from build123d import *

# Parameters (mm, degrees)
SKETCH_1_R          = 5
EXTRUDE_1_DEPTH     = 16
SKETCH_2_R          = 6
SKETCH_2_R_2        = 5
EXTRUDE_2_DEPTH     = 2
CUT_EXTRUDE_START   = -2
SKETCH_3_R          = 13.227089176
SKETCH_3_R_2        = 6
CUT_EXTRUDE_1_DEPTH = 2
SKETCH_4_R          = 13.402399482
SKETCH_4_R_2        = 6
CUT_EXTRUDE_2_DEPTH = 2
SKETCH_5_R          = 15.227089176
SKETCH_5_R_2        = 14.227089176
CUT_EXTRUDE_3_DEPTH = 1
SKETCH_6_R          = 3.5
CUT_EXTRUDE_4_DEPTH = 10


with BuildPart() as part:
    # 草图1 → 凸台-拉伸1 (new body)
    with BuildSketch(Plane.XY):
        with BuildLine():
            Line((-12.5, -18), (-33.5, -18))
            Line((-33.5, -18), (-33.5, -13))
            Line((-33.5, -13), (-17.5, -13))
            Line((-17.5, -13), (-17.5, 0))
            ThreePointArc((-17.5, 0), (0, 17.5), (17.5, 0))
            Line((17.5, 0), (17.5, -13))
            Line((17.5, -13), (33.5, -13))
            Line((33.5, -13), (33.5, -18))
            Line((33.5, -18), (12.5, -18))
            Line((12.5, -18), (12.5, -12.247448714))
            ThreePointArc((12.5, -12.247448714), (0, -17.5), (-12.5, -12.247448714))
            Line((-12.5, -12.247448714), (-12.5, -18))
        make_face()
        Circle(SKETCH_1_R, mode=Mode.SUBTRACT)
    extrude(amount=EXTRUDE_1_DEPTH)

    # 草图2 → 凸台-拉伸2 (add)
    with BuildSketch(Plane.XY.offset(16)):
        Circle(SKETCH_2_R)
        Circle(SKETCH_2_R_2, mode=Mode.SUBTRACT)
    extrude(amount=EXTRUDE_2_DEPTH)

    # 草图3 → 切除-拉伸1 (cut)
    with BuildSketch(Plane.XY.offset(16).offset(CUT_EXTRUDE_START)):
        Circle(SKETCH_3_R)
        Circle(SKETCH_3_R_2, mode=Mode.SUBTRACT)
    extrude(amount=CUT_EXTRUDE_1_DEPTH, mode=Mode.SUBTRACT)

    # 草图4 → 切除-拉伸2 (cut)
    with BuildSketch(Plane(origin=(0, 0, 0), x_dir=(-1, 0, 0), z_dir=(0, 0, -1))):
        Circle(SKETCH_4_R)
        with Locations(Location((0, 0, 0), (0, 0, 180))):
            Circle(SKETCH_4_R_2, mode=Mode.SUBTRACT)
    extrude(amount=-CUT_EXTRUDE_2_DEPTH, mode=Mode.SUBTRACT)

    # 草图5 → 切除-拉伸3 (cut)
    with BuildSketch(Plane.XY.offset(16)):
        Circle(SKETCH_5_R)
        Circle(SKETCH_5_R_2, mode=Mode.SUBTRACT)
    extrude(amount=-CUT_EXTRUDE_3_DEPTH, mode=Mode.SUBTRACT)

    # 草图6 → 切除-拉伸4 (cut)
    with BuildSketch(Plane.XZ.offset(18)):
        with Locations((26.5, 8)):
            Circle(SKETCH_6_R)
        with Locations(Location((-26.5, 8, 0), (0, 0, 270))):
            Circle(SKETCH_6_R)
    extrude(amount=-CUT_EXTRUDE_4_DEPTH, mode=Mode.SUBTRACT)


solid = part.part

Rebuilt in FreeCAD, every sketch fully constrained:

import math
import FreeCAD as App
import Part
import Sketcher
Q = App.Units.Quantity

doc = App.newDocument("Part")
body = doc.addObject("PartDesign::Body", "Body")

# Sketch on XY plane
sketch1 = body.newObject("Sketcher::SketchObject", "Sketch")
sketch1.AttachmentSupport = (doc.getObject("XY_Plane"), [""])
sketch1.MapMode = "FlatFace"
sketch1.addGeometry([
    Part.LineSegment(App.Vector(-33.5, -18, 0), App.Vector(-12.5, -18, 0)),  # 0
    Part.LineSegment(App.Vector(-12.5, -18, 0), App.Vector(-12.5, -12.247449, 0)),  # 1
    Part.ArcOfCircle(Part.Circle(App.Vector(0, 0, 0), App.Vector(0, 0, 1), 17.5), math.radians(-135.584691), math.radians(-44.415309)),  # 2
    Part.LineSegment(App.Vector(12.5, -12.247449, 0), App.Vector(12.5, -18, 0)),  # 3
    Part.LineSegment(App.Vector(12.5, -18, 0), App.Vector(33.5, -18, 0)),  # 4
    Part.LineSegment(App.Vector(33.5, -18, 0), App.Vector(33.5, -13, 0)),  # 5
    Part.LineSegment(App.Vector(33.5, -13, 0), App.Vector(17.5, -13, 0)),  # 6
    Part.LineSegment(App.Vector(17.5, -13, 0), App.Vector(17.5, 0, 0)),  # 7
    Part.ArcOfCircle(Part.Circle(App.Vector(0, 0, 0), App.Vector(0, 0, 1), 17.5), math.radians(0), math.radians(180)),  # 8
    Part.LineSegment(App.Vector(-17.5, 0, 0), App.Vector(-17.5, -13, 0)),  # 9
    Part.LineSegment(App.Vector(-17.5, -13, 0), App.Vector(-33.5, -13, 0)),  # 10
    Part.LineSegment(App.Vector(-33.5, -13, 0), App.Vector(-33.5, -18, 0)),  # 11
    Part.Circle(App.Vector(0, 0, 0), App.Vector(0, 0, 1), 5),  # 12
], False)
sketch1.addConstraint([
    Sketcher.Constraint("Coincident", 0, 2, 1, 1),
    Sketcher.Constraint("Coincident", 1, 2, 2, 1),
    Sketcher.Constraint("Coincident", 2, 2, 3, 1),
    Sketcher.Constraint("Coincident", 3, 2, 4, 1),
    Sketcher.Constraint("Coincident", 4, 2, 5, 1),
    Sketcher.Constraint("Coincident", 5, 2, 6, 1),
    Sketcher.Constraint("Coincident", 6, 2, 7, 1),
    Sketcher.Constraint("Tangent", 7, 2, 8, 1),
    Sketcher.Constraint("Tangent", 8, 2, 9, 1),
    Sketcher.Constraint("Coincident", 9, 2, 10, 1),
    Sketcher.Constraint("Coincident", 10, 2, 11, 1),
    Sketcher.Constraint("Coincident", 11, 2, 0, 1),
    Sketcher.Constraint("Horizontal", 0),
    Sketcher.Constraint("Vertical", 1),
    Sketcher.Constraint("Vertical", 3),
    Sketcher.Constraint("Horizontal", 4),
    Sketcher.Constraint("Vertical", 5),
    Sketcher.Constraint("Horizontal", 6),
    Sketcher.Constraint("Vertical", 7),
    Sketcher.Constraint("Vertical", 9),
    Sketcher.Constraint("Horizontal", 10),
    Sketcher.Constraint("Vertical", 11),
    Sketcher.Constraint("Coincident", 2, 3, -1, 1),
    Sketcher.Constraint("Coincident", 8, 3, -1, 1),
    Sketcher.Constraint("Coincident", 12, 3, -1, 1),
    Sketcher.Constraint("Equal", 2, 8),
    Sketcher.Constraint("Symmetric", 0, 2, 3, 2, -2),
    Sketcher.Constraint("Symmetric", 5, 2, 10, 2, -2),
    Sketcher.Constraint("Diameter", 12, Q("10 mm")),
    Sketcher.Constraint("Radius", 2, Q("17.5 mm")),
    Sketcher.Constraint("DistanceX", 0, 1, 0, 2, Q("21 mm")),
    Sketcher.Constraint("DistanceX", 6, 2, 6, 1, Q("16 mm")),
    Sketcher.Constraint("DistanceY", 5, 1, 5, 2, Q("5 mm")),
    Sketcher.Constraint("DistanceY", 7, 1, 7, 2, Q("13 mm")),
])
pad1 = body.newObject("PartDesign::Pad", "Pad")
pad1.Profile = sketch1
pad1.Length = 16

# Sketch on XY plane
sketch2 = body.newObject("Sketcher::SketchObject", "Sketch001")
sketch2.AttachmentSupport = (doc.getObject("XY_Plane"), [""])
sketch2.MapMode = "FlatFace"
sketch2.AttachmentOffset = App.Placement(App.Vector(0, 0, 16), App.Rotation())
sketch2.addGeometry([
    Part.Circle(App.Vector(0, 0, 0), App.Vector(0, 0, 1), 6),
    Part.Circle(App.Vector(0, 0, 0), App.Vector(0, 0, 1), 5),
], False)
sketch2.addConstraint([
    Sketcher.Constraint("Coincident", 0, 3, -1, 1),
    Sketcher.Constraint("Coincident", 1, 3, -1, 1),
    Sketcher.Constraint("Diameter", 0, Q("12 mm")),
    Sketcher.Constraint("Diameter", 1, Q("10 mm")),
])
pad2 = body.newObject("PartDesign::Pad", "Pad001")
pad2.Profile = sketch2
pad2.Length = 2

# Sketch on XY plane
sketch3 = body.newObject("Sketcher::SketchObject", "Sketch002")
sketch3.AttachmentSupport = (doc.getObject("XY_Plane"), [""])
sketch3.MapMode = "FlatFace"
sketch3.AttachmentOffset = App.Placement(App.Vector(0, 0, 14), App.Rotation())
sketch3.addGeometry([
    Part.Circle(App.Vector(0, 0, 0), App.Vector(0, 0, 1), 13.227089),
    Part.Circle(App.Vector(0, 0, 0), App.Vector(0, 0, 1), 6),
], False)
sketch3.addConstraint([
    Sketcher.Constraint("Coincident", 0, 3, -1, 1),
    Sketcher.Constraint("Coincident", 1, 3, -1, 1),
    Sketcher.Constraint("Diameter", 1, Q("12 mm")),
    Sketcher.Constraint("Diameter", 0, Q("26.454178 mm")),
])
pocket1 = body.newObject("PartDesign::Pocket", "Pocket")
pocket1.Profile = sketch3
pocket1.Length = 2
pocket1.Reversed = True

# Sketch on XY plane
sketch4 = body.newObject("Sketcher::SketchObject", "Sketch003")
sketch4.AttachmentSupport = (doc.getObject("XY_Plane"), [""])
sketch4.MapMode = "FlatFace"
sketch4.addGeometry([
    Part.Circle(App.Vector(0, 0, 0), App.Vector(0, 0, 1), 13.402399),
    Part.Circle(App.Vector(0, 0, 0), App.Vector(0, 0, 1), 6),
], False)
sketch4.addConstraint([
    Sketcher.Constraint("Coincident", 0, 3, -1, 1),
    Sketcher.Constraint("Coincident", 1, 3, -1, 1),
    Sketcher.Constraint("Diameter", 1, Q("12 mm")),
    Sketcher.Constraint("Diameter", 0, Q("26.804799 mm")),
])
pocket2 = body.newObject("PartDesign::Pocket", "Pocket001")
pocket2.Profile = sketch4
pocket2.Length = 2
pocket2.Reversed = True

# Sketch on XY plane
sketch5 = body.newObject("Sketcher::SketchObject", "Sketch004")
sketch5.AttachmentSupport = (doc.getObject("XY_Plane"), [""])
sketch5.MapMode = "FlatFace"
sketch5.AttachmentOffset = App.Placement(App.Vector(0, 0, 16), App.Rotation())
sketch5.addGeometry([
    Part.Circle(App.Vector(0, 0, 0), App.Vector(0, 0, 1), 15.227089),
    Part.Circle(App.Vector(0, 0, 0), App.Vector(0, 0, 1), 14.227089),
], False)
sketch5.addConstraint([
    Sketcher.Constraint("Coincident", 0, 3, -1, 1),
    Sketcher.Constraint("Coincident", 1, 3, -1, 1),
    Sketcher.Constraint("Diameter", 0, Q("30.454178 mm")),
    Sketcher.Constraint("Diameter", 1, Q("28.454178 mm")),
])
pocket3 = body.newObject("PartDesign::Pocket", "Pocket002")
pocket3.Profile = sketch5
pocket3.Length = 1

# Sketch on XZ plane
sketch6 = body.newObject("Sketcher::SketchObject", "Sketch005")
sketch6.AttachmentSupport = (doc.getObject("XZ_Plane"), [""])
sketch6.MapMode = "FlatFace"
sketch6.AttachmentOffset = App.Placement(App.Vector(0, 0, 18), App.Rotation())
sketch6.addGeometry([
    Part.Circle(App.Vector(26.5, 8, 0), App.Vector(0, 0, 1), 3.5),
    Part.Circle(App.Vector(-26.5, 8, 0), App.Vector(0, 0, 1), 3.5),
], False)
sketch6.addConstraint([
    Sketcher.Constraint("Equal", 0, 1),
    Sketcher.Constraint("Symmetric", 0, 3, 1, 3, -2),
    Sketcher.Constraint("Diameter", 0, Q("7 mm")),
    Sketcher.Constraint("DistanceY", -1, 1, 0, 3, Q("8 mm")),
    Sketcher.Constraint("DistanceX", 1, 3, 0, 3, Q("53 mm")),
])
pocket4 = body.newObject("PartDesign::Pocket", "Pocket003")
pocket4.Profile = sketch6
pocket4.Length = 10

doc.recompute()
